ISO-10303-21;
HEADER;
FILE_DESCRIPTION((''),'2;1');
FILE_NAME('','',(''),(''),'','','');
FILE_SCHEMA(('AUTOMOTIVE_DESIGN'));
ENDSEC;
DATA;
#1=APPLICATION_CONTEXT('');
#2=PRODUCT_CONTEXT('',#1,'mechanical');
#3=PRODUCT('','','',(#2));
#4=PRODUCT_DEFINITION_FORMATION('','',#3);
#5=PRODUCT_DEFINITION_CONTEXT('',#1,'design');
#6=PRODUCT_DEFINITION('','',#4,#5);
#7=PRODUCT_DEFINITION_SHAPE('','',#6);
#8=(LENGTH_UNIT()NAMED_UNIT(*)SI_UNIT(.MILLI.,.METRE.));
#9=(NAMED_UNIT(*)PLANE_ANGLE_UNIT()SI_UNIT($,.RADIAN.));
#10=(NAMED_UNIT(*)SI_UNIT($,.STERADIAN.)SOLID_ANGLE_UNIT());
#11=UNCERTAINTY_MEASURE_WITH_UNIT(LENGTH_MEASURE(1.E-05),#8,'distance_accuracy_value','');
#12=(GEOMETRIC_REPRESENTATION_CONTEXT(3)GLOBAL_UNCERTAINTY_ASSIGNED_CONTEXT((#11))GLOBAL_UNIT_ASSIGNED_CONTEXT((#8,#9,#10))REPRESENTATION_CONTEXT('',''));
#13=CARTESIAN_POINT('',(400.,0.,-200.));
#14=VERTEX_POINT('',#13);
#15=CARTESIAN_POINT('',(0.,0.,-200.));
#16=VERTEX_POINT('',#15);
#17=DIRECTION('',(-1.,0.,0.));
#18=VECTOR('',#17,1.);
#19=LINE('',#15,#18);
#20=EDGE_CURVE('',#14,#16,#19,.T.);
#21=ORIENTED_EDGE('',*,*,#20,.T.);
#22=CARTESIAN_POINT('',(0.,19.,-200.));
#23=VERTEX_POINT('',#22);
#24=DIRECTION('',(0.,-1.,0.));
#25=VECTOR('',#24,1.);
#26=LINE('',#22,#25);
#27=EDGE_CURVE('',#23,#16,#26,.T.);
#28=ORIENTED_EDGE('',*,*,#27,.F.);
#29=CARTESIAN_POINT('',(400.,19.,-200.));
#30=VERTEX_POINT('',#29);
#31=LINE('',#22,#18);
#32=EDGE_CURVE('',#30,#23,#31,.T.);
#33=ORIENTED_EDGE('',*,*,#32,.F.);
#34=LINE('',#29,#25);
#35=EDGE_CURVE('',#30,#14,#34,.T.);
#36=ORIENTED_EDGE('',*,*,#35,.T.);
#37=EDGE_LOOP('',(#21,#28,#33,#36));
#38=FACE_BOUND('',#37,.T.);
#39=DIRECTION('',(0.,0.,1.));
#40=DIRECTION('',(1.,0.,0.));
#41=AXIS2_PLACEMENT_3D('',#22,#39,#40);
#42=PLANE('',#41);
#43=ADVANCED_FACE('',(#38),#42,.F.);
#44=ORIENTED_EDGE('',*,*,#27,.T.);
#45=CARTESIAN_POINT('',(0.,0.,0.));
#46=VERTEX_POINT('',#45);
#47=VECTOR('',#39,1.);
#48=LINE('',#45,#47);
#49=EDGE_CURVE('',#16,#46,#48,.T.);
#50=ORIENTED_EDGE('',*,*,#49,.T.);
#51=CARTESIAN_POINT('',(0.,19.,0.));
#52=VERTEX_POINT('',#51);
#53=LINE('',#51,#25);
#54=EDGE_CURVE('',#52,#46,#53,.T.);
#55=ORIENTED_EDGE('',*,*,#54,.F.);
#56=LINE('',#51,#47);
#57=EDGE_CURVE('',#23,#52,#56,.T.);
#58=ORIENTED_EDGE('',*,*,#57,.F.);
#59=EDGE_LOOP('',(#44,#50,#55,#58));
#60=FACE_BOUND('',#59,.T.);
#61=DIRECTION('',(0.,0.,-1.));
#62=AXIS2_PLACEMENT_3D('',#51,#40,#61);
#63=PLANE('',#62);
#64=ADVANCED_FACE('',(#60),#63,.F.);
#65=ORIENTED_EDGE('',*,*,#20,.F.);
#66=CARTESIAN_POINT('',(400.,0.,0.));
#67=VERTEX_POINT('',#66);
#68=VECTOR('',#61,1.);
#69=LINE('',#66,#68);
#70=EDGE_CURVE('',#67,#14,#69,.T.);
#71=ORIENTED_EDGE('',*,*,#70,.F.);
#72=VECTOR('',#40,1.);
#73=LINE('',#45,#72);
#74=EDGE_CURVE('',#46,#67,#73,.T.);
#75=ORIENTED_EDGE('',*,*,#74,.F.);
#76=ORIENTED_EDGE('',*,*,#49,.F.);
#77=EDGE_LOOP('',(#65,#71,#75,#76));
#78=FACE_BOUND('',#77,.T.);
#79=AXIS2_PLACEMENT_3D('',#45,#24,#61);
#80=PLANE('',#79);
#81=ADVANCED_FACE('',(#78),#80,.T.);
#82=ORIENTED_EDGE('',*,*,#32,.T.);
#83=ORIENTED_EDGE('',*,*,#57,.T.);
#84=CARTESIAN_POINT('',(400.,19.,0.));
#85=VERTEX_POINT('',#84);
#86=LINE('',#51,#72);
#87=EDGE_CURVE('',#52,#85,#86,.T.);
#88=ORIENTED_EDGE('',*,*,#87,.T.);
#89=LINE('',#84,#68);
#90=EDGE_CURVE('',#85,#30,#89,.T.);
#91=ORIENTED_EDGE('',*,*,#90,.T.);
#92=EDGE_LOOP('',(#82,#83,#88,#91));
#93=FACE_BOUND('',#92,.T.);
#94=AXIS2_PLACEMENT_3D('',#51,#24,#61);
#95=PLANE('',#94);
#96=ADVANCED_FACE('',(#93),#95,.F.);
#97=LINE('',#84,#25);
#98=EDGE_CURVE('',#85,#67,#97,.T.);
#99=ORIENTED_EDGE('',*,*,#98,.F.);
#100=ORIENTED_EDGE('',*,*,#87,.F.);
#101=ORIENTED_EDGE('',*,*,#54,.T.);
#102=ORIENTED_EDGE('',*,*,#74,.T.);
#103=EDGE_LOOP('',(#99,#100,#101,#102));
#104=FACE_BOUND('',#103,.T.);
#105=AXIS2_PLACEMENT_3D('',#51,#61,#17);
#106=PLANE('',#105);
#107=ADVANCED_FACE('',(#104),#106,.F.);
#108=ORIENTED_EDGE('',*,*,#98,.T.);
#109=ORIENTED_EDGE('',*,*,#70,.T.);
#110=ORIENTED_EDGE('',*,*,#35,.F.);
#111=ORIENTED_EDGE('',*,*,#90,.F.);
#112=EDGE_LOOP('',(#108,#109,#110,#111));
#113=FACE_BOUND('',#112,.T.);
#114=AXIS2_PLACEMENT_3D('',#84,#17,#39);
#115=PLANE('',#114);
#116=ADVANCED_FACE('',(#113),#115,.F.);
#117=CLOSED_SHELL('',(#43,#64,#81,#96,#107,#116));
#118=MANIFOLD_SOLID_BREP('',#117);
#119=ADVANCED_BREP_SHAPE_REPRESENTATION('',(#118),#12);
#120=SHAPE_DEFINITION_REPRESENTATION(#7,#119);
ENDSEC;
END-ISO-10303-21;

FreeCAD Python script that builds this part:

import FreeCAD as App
import Part
import Sketcher


def add_polygon(sketch, points):
    """Adds a closed chain of lines whose ends are joined by coincident constraints."""
    first, n = sketch.GeometryCount, len(points)
    for a, b in zip(points, points[1:] + points[:1]):
        sketch.addGeometry(Part.LineSegment(App.Vector(*a, 0), App.Vector(*b, 0)), False)
    for i in range(n):
        sketch.addConstraint(Sketcher.Constraint("Coincident", first + i, 2, first + (i + 1) % n, 1))

doc = App.newDocument("Part")
body = doc.addObject("PartDesign::Body", "Body")

# Sketch on XZ plane
sketch1 = body.newObject("Sketcher::SketchObject", "Sketch")
sketch1.AttachmentSupport = (doc.getObject("XZ_Plane"), [""])
sketch1.MapMode = "FlatFace"
add_polygon(sketch1, [(0, -200), (0, 0), (400, 0), (400, -200)])  # lines 0-3
sketch1.addConstraint([
    Sketcher.Constraint("Vertical", 0),
    Sketcher.Constraint("Horizontal", 1),
    Sketcher.Constraint("Vertical", 2),
    Sketcher.Constraint("Horizontal", 3),
    Sketcher.Constraint("Coincident", 0, 2, -1, 1),
    Sketcher.Constraint("DistanceX", 1, 1, 1, 2, 400.0),
    Sketcher.Constraint("DistanceY", 0, 1, 0, 2, 200.0),
])
pad1 = body.newObject("PartDesign::Pad", "Pad")
pad1.Profile = sketch1
pad1.Length = 19
pad1.Reversed = True

doc.recompute()
